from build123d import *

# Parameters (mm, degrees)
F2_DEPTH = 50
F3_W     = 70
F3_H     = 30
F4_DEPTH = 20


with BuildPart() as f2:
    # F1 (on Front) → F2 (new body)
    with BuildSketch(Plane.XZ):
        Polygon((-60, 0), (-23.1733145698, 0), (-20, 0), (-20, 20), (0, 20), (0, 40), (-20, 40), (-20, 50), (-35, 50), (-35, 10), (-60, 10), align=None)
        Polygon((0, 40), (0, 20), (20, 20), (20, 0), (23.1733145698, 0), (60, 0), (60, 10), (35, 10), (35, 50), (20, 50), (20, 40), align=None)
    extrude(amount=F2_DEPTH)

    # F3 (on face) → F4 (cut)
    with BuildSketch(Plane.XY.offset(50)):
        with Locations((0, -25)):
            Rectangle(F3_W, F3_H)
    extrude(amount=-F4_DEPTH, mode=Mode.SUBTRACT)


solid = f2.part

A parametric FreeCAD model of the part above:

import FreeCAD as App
import Part
import Sketcher
from FreeCAD import Vector

doc = App.newDocument("Part")
body = doc.addObject("PartDesign::Body", "Body")

# Sketch on XZ plane
sketch1 = body.newObject("Sketcher::SketchObject", "Sketch")
sketch1.AttachmentSupport = (doc.getObject("XZ_Plane"), [""])
sketch1.MapMode = "FlatFace"
sketch1.addGeometry(Part.LineSegment(Vector(-60, 0, 0), Vector(-20, 0, 0)), False)
sketch1.addGeometry(Part.LineSegment(Vector(-20, 0, 0), Vector(-20, 20, 0)), False)
sketch1.addGeometry(Part.LineSegment(Vector(-20, 20, 0), Vector(20, 20, 0)), False)
sketch1.addGeometry(Part.LineSegment(Vector(20, 20, 0), Vector(20, 0, 0)), False)
sketch1.addGeometry(Part.LineSegment(Vector(20, 0, 0), Vector(60, 0, 0)), False)
sketch1.addGeometry(Part.LineSegment(Vector(60, 0, 0), Vector(60, 10, 0)), False)
sketch1.addGeometry(Part.LineSegment(Vector(60, 10, 0), Vector(35, 10, 0)), False)
sketch1.addGeometry(Part.LineSegment(Vector(35, 10, 0), Vector(35, 50, 0)), False)
sketch1.addGeometry(Part.LineSegment(Vector(35, 50, 0), Vector(20, 50, 0)), False)
sketch1.addGeometry(Part.LineSegment(Vector(20, 50, 0), Vector(20, 40, 0)), False)
sketch1.addGeometry(Part.LineSegment(Vector(20, 40, 0), Vector(-20, 40, 0)), False)
sketch1.addGeometry(Part.LineSegment(Vector(-20, 40, 0), Vector(-20, 50, 0)), False)
sketch1.addGeometry(Part.LineSegment(Vector(-20, 50, 0), Vector(-35, 50, 0)), False)
sketch1.addGeometry(Part.LineSegment(Vector(-35, 50, 0), Vector(-35, 10, 0)), False)
sketch1.addGeometry(Part.LineSegment(Vector(-35, 10, 0), Vector(-60, 10, 0)), False)
sketch1.addGeometry(Part.LineSegment(Vector(-60, 10, 0), Vector(-60, 0, 0)), False)
sketch1.addConstraint(Sketcher.Constraint("Coincident", 0, 2, 1, 1))
sketch1.addConstraint(Sketcher.Constraint("Coincident", 1, 2, 2, 1))
sketch1.addConstraint(Sketcher.Constraint("Coincident", 2, 2, 3, 1))
sketch1.addConstraint(Sketcher.Constraint("Coincident", 3, 2, 4, 1))
sketch1.addConstraint(Sketcher.Constraint("Coincident", 4, 2, 5, 1))
sketch1.addConstraint(Sketcher.Constraint("Coincident", 5, 2, 6, 1))
sketch1.addConstraint(Sketcher.Constraint("Coincident", 6, 2, 7, 1))
sketch1.addConstraint(Sketcher.Constraint("Coincident", 7, 2, 8, 1))
sketch1.addConstraint(Sketcher.Constraint("Coincident", 8, 2, 9, 1))
sketch1.addConstraint(Sketcher.Constraint("Coincident", 9, 2, 10, 1))
sketch1.addConstraint(Sketcher.Constraint("Coincident", 10, 2, 11, 1))
sketch1.addConstraint(Sketcher.Constraint("Coincident", 11, 2, 12, 1))
sketch1.addConstraint(Sketcher.Constraint("Coincident", 12, 2, 13, 1))
sketch1.addConstraint(Sketcher.Constraint("Coincident", 13, 2, 14, 1))
sketch1.addConstraint(Sketcher.Constraint("Coincident", 14, 2, 15, 1))
sketch1.addConstraint(Sketcher.Constraint("Coincident", 15, 2, 0, 1))
sketch1.addConstraint(Sketcher.Constraint("Horizontal", 0))
sketch1.addConstraint(Sketcher.Constraint("Vertical", 1))
sketch1.addConstraint(Sketcher.Constraint("Horizontal", 2))
sketch1.addConstraint(Sketcher.Constraint("Vertical", 3))
sketch1.addConstraint(Sketcher.Constraint("Horizontal", 4))
sketch1.addConstraint(Sketcher.Constraint("Vertical", 5))
sketch1.addConstraint(Sketcher.Constraint("Horizontal", 6))
sketch1.addConstraint(Sketcher.Constraint("Vertical", 7))
sketch1.addConstraint(Sketcher.Constraint("Horizontal", 8))
sketch1.addConstraint(Sketcher.Constraint("Vertical", 9))
sketch1.addConstraint(Sketcher.Constraint("Horizontal", 10))
sketch1.addConstraint(Sketcher.Constraint("Vertical", 11))
sketch1.addConstraint(Sketcher.Constraint("Horizontal", 12))
sketch1.addConstraint(Sketcher.Constraint("Vertical", 13))
sketch1.addConstraint(Sketcher.Constraint("Horizontal", 14))
sketch1.addConstraint(Sketcher.Constraint("Vertical", 15))
sketch1.addConstraint(Sketcher.Constraint("Symmetric", 0, 2, 3, 2, -1, 1))
sketch1.addConstraint(Sketcher.Constraint("Symmetric", 8, 2, 11, 2, -2))
sketch1.addConstraint(Sketcher.Constraint("Symmetric", 6, 2, 13, 2, -2))
sketch1.addConstraint(Sketcher.Constraint("Symmetric", 4, 2, 15, 2, -2))
sketch1.addConstraint(Sketcher.Constraint("Vertical", 3, 2, 8, 2))
sketch1.addConstraint(Sketcher.Constraint("Equal", 0, 2))
sketch1.addConstraint(Sketcher.Constraint("Equal", 10, 7))
sketch1.addConstraint(Sketcher.Constraint("Equal", 5, 9))
sketch1.addConstraint(Sketcher.Constraint("DistanceX", 0, 1, 0, 2, 40.0))
sketch1.addConstraint(Sketcher.Constraint("DistanceX", 6, 2, 6, 1, 25.0))
sketch1.addConstraint(Sketcher.Constraint("DistanceY", 1, 1, 1, 2, 20.0))
sketch1.addConstraint(Sketcher.Constraint("DistanceY", 5, 1, 5, 2, 10.0))
pad1 = body.newObject("PartDesign::Pad", "Pad")
pad1.Profile = sketch1
pad1.Length = 50

# Sketch on XY plane
sketch2 = body.newObject("Sketcher::SketchObject", "Sketch001")
sketch2.AttachmentSupport = (doc.getObject("XY_Plane"), [""])
sketch2.MapMode = "FlatFace"
sketch2.AttachmentOffset = App.Placement(Vector(0, 0, 50), App.Rotation())
sketch2.addGeometry(Part.LineSegment(Vector(-35, -10, 0), Vector(-35, -40, 0)), False)
sketch2.addGeometry(Part.LineSegment(Vector(-35, -40, 0), Vector(35, -40, 0)), False)
sketch2.addGeometry(Part.LineSegment(Vector(35, -40, 0), Vector(35, -10, 0)), False)
sketch2.addGeometry(Part.LineSegment(Vector(35, -10, 0), Vector(-35, -10, 0)), False)
sketch2.addConstraint(Sketcher.Constraint("Coincident", 0, 2, 1, 1))
sketch2.addConstraint(Sketcher.Constraint("Coincident", 1, 2, 2, 1))
sketch2.addConstraint(Sketcher.Constraint("Coincident", 2, 2, 3, 1))
sketch2.addConstraint(Sketcher.Constraint("Coincident", 3, 2, 0, 1))
sketch2.addConstraint(Sketcher.Constraint("Vertical", 0))
sketch2.addConstraint(Sketcher.Constraint("Horizontal", 1))
sketch2.addConstraint(Sketcher.Constraint("Vertical", 2))
sketch2.addConstraint(Sketcher.Constraint("Horizontal", 3))
sketch2.addConstraint(Sketcher.Constraint("DistanceX", 1, 1, 1, 2, 70.0))
sketch2.addConstraint(Sketcher.Constraint("DistanceY", 0, 2, 0, 1, 30.0))
sketch2.addConstraint(Sketcher.Constraint("DistanceX", 0, 2, -1, 1, 35.0))
sketch2.addConstraint(Sketcher.Constraint("DistanceY", 0, 2, -1, 1, 40.0))
pocket1 = body.newObject("PartDesign::Pocket", "Pocket")
pocket1.Profile = sketch2
pocket1.Length = 20

doc.recompute()
